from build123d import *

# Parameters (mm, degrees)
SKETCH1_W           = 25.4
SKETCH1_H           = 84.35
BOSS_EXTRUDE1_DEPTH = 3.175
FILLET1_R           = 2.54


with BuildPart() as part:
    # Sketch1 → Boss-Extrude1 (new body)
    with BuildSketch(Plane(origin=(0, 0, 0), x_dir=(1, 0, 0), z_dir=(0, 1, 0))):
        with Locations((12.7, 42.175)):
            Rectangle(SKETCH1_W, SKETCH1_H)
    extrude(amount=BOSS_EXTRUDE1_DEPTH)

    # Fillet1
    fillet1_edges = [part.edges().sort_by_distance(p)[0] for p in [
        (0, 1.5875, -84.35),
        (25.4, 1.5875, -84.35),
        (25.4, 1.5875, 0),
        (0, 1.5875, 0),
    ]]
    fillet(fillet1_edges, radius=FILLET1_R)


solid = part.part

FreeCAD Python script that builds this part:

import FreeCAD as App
import Part
import Sketcher
from FreeCAD import Vector
Q = App.Units.Quantity


def edges_at(feature, points):
    """Names of the edges that pass closest to the given points."""
    edges = feature.Shape.Edges
    near = lambda p: min(range(len(edges)), key=lambda i: edges[i].distToShape(Part.Vertex(*p))[0])
    return sorted({f"Edge{near(p) + 1}" for p in points})

doc = App.newDocument("Part")
body = doc.addObject("PartDesign::Body", "Body")

# Sketch on XZ plane
sketch1 = body.newObject("Sketcher::SketchObject", "Sketch")
sketch1.AttachmentSupport = (doc.getObject("XZ_Plane"), [""])
sketch1.MapMode = "FlatFace"
sketch1.addGeometry(Part.LineSegment(Vector(0, -84.35, 0), Vector(0, 0, 0)), False)
sketch1.addGeometry(Part.LineSegment(Vector(0, 0, 0), Vector(25.4, 0, 0)), False)
sketch1.addGeometry(Part.LineSegment(Vector(25.4, 0, 0), Vector(25.4, -84.35, 0)), False)
sketch1.addGeometry(Part.LineSegment(Vector(25.4, -84.35, 0), Vector(0, -84.35, 0)), False)
sketch1.addConstraint(Sketcher.Constraint("Coincident", 0, 2, 1, 1))
sketch1.addConstraint(Sketcher.Constraint("Coincident", 1, 2, 2, 1))
sketch1.addConstraint(Sketcher.Constraint("Coincident", 2, 2, 3, 1))
sketch1.addConstraint(Sketcher.Constraint("Coincident", 3, 2, 0, 1))
sketch1.addConstraint(Sketcher.Constraint("Vertical", 0))
sketch1.addConstraint(Sketcher.Constraint("Horizontal", 1))
sketch1.addConstraint(Sketcher.Constraint("Vertical", 2))
sketch1.addConstraint(Sketcher.Constraint("Horizontal", 3))
sketch1.addConstraint(Sketcher.Constraint("Coincident", 0, 2, -1, 1))
sketch1.addConstraint(Sketcher.Constraint("DistanceX", 1, 1, 1, 2, Q("1 in")))
sketch1.addConstraint(Sketcher.Constraint("DistanceY", 0, 1, 0, 2, Q("84.35 mm")))
pad1 = body.newObject("PartDesign::Pad", "Pad")
pad1.Profile = sketch1
pad1.Length = Q("0.125 in")
pad1.Reversed = True
doc.recompute()

fillet = body.newObject("PartDesign::Fillet", "Fillet")
fillet.Base = (pad1, edges_at(pad1, [
    (0, 1.587, -84.35),
    (25.4, 1.587, -84.35),
    (25.4, 1.587, 0),
    (0, 1.587, 0),
]))
fillet.Radius = Q("0.1 in")

doc.recompute()
